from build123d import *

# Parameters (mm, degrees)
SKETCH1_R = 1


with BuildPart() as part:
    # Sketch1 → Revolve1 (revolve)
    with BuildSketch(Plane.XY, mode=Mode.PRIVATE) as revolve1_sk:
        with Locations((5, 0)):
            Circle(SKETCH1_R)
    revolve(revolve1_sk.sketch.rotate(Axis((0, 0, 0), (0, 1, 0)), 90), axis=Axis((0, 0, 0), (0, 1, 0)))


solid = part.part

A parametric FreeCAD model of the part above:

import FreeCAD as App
import Part
import Sketcher

V = App.Vector

doc = App.newDocument("Part")
params = doc.addObject("Spreadsheet::Sheet", "Params")
for row, (alias, value) in enumerate([
    ("sketch1_diameter", "2 mm"),
    ("revolution_angle", "360 deg"),
], start=1):
    params.set(f"A{row}", alias)
    params.set(f"B{row}", "=" + value)
    params.setAlias(f"B{row}", alias)

body = doc.addObject("PartDesign::Body", "Body")

sketch1 = doc.addObject("Sketcher::SketchObject", "Sketch")
body.addObject(sketch1)
sketch1.AttachmentSupport = (doc.XY_Plane, [""])
sketch1.MapMode = "FlatFace"
sketch1.addGeometry(Part.Circle(V(5, 0, 0), V(0, 0, 1), 1), False)
sketch1.addConstraint([
    Sketcher.Constraint("PointOnObject", 0, 3, -1),
    Sketcher.Constraint("Diameter", 0, 2.0),
    Sketcher.Constraint("DistanceX", -1, 1, 0, 3, 5.0),
])
sketch1.setExpression("Constraints[1]", "Params.sketch1_diameter")
revolution = doc.addObject("PartDesign::Revolution", "Revolution")
body.addObject(revolution)
revolution.Profile = sketch1
revolution.ReferenceAxis = (sketch1, ["V_Axis"])
revolution.setExpression("Angle", "Params.revolution_angle")

doc.recompute()
